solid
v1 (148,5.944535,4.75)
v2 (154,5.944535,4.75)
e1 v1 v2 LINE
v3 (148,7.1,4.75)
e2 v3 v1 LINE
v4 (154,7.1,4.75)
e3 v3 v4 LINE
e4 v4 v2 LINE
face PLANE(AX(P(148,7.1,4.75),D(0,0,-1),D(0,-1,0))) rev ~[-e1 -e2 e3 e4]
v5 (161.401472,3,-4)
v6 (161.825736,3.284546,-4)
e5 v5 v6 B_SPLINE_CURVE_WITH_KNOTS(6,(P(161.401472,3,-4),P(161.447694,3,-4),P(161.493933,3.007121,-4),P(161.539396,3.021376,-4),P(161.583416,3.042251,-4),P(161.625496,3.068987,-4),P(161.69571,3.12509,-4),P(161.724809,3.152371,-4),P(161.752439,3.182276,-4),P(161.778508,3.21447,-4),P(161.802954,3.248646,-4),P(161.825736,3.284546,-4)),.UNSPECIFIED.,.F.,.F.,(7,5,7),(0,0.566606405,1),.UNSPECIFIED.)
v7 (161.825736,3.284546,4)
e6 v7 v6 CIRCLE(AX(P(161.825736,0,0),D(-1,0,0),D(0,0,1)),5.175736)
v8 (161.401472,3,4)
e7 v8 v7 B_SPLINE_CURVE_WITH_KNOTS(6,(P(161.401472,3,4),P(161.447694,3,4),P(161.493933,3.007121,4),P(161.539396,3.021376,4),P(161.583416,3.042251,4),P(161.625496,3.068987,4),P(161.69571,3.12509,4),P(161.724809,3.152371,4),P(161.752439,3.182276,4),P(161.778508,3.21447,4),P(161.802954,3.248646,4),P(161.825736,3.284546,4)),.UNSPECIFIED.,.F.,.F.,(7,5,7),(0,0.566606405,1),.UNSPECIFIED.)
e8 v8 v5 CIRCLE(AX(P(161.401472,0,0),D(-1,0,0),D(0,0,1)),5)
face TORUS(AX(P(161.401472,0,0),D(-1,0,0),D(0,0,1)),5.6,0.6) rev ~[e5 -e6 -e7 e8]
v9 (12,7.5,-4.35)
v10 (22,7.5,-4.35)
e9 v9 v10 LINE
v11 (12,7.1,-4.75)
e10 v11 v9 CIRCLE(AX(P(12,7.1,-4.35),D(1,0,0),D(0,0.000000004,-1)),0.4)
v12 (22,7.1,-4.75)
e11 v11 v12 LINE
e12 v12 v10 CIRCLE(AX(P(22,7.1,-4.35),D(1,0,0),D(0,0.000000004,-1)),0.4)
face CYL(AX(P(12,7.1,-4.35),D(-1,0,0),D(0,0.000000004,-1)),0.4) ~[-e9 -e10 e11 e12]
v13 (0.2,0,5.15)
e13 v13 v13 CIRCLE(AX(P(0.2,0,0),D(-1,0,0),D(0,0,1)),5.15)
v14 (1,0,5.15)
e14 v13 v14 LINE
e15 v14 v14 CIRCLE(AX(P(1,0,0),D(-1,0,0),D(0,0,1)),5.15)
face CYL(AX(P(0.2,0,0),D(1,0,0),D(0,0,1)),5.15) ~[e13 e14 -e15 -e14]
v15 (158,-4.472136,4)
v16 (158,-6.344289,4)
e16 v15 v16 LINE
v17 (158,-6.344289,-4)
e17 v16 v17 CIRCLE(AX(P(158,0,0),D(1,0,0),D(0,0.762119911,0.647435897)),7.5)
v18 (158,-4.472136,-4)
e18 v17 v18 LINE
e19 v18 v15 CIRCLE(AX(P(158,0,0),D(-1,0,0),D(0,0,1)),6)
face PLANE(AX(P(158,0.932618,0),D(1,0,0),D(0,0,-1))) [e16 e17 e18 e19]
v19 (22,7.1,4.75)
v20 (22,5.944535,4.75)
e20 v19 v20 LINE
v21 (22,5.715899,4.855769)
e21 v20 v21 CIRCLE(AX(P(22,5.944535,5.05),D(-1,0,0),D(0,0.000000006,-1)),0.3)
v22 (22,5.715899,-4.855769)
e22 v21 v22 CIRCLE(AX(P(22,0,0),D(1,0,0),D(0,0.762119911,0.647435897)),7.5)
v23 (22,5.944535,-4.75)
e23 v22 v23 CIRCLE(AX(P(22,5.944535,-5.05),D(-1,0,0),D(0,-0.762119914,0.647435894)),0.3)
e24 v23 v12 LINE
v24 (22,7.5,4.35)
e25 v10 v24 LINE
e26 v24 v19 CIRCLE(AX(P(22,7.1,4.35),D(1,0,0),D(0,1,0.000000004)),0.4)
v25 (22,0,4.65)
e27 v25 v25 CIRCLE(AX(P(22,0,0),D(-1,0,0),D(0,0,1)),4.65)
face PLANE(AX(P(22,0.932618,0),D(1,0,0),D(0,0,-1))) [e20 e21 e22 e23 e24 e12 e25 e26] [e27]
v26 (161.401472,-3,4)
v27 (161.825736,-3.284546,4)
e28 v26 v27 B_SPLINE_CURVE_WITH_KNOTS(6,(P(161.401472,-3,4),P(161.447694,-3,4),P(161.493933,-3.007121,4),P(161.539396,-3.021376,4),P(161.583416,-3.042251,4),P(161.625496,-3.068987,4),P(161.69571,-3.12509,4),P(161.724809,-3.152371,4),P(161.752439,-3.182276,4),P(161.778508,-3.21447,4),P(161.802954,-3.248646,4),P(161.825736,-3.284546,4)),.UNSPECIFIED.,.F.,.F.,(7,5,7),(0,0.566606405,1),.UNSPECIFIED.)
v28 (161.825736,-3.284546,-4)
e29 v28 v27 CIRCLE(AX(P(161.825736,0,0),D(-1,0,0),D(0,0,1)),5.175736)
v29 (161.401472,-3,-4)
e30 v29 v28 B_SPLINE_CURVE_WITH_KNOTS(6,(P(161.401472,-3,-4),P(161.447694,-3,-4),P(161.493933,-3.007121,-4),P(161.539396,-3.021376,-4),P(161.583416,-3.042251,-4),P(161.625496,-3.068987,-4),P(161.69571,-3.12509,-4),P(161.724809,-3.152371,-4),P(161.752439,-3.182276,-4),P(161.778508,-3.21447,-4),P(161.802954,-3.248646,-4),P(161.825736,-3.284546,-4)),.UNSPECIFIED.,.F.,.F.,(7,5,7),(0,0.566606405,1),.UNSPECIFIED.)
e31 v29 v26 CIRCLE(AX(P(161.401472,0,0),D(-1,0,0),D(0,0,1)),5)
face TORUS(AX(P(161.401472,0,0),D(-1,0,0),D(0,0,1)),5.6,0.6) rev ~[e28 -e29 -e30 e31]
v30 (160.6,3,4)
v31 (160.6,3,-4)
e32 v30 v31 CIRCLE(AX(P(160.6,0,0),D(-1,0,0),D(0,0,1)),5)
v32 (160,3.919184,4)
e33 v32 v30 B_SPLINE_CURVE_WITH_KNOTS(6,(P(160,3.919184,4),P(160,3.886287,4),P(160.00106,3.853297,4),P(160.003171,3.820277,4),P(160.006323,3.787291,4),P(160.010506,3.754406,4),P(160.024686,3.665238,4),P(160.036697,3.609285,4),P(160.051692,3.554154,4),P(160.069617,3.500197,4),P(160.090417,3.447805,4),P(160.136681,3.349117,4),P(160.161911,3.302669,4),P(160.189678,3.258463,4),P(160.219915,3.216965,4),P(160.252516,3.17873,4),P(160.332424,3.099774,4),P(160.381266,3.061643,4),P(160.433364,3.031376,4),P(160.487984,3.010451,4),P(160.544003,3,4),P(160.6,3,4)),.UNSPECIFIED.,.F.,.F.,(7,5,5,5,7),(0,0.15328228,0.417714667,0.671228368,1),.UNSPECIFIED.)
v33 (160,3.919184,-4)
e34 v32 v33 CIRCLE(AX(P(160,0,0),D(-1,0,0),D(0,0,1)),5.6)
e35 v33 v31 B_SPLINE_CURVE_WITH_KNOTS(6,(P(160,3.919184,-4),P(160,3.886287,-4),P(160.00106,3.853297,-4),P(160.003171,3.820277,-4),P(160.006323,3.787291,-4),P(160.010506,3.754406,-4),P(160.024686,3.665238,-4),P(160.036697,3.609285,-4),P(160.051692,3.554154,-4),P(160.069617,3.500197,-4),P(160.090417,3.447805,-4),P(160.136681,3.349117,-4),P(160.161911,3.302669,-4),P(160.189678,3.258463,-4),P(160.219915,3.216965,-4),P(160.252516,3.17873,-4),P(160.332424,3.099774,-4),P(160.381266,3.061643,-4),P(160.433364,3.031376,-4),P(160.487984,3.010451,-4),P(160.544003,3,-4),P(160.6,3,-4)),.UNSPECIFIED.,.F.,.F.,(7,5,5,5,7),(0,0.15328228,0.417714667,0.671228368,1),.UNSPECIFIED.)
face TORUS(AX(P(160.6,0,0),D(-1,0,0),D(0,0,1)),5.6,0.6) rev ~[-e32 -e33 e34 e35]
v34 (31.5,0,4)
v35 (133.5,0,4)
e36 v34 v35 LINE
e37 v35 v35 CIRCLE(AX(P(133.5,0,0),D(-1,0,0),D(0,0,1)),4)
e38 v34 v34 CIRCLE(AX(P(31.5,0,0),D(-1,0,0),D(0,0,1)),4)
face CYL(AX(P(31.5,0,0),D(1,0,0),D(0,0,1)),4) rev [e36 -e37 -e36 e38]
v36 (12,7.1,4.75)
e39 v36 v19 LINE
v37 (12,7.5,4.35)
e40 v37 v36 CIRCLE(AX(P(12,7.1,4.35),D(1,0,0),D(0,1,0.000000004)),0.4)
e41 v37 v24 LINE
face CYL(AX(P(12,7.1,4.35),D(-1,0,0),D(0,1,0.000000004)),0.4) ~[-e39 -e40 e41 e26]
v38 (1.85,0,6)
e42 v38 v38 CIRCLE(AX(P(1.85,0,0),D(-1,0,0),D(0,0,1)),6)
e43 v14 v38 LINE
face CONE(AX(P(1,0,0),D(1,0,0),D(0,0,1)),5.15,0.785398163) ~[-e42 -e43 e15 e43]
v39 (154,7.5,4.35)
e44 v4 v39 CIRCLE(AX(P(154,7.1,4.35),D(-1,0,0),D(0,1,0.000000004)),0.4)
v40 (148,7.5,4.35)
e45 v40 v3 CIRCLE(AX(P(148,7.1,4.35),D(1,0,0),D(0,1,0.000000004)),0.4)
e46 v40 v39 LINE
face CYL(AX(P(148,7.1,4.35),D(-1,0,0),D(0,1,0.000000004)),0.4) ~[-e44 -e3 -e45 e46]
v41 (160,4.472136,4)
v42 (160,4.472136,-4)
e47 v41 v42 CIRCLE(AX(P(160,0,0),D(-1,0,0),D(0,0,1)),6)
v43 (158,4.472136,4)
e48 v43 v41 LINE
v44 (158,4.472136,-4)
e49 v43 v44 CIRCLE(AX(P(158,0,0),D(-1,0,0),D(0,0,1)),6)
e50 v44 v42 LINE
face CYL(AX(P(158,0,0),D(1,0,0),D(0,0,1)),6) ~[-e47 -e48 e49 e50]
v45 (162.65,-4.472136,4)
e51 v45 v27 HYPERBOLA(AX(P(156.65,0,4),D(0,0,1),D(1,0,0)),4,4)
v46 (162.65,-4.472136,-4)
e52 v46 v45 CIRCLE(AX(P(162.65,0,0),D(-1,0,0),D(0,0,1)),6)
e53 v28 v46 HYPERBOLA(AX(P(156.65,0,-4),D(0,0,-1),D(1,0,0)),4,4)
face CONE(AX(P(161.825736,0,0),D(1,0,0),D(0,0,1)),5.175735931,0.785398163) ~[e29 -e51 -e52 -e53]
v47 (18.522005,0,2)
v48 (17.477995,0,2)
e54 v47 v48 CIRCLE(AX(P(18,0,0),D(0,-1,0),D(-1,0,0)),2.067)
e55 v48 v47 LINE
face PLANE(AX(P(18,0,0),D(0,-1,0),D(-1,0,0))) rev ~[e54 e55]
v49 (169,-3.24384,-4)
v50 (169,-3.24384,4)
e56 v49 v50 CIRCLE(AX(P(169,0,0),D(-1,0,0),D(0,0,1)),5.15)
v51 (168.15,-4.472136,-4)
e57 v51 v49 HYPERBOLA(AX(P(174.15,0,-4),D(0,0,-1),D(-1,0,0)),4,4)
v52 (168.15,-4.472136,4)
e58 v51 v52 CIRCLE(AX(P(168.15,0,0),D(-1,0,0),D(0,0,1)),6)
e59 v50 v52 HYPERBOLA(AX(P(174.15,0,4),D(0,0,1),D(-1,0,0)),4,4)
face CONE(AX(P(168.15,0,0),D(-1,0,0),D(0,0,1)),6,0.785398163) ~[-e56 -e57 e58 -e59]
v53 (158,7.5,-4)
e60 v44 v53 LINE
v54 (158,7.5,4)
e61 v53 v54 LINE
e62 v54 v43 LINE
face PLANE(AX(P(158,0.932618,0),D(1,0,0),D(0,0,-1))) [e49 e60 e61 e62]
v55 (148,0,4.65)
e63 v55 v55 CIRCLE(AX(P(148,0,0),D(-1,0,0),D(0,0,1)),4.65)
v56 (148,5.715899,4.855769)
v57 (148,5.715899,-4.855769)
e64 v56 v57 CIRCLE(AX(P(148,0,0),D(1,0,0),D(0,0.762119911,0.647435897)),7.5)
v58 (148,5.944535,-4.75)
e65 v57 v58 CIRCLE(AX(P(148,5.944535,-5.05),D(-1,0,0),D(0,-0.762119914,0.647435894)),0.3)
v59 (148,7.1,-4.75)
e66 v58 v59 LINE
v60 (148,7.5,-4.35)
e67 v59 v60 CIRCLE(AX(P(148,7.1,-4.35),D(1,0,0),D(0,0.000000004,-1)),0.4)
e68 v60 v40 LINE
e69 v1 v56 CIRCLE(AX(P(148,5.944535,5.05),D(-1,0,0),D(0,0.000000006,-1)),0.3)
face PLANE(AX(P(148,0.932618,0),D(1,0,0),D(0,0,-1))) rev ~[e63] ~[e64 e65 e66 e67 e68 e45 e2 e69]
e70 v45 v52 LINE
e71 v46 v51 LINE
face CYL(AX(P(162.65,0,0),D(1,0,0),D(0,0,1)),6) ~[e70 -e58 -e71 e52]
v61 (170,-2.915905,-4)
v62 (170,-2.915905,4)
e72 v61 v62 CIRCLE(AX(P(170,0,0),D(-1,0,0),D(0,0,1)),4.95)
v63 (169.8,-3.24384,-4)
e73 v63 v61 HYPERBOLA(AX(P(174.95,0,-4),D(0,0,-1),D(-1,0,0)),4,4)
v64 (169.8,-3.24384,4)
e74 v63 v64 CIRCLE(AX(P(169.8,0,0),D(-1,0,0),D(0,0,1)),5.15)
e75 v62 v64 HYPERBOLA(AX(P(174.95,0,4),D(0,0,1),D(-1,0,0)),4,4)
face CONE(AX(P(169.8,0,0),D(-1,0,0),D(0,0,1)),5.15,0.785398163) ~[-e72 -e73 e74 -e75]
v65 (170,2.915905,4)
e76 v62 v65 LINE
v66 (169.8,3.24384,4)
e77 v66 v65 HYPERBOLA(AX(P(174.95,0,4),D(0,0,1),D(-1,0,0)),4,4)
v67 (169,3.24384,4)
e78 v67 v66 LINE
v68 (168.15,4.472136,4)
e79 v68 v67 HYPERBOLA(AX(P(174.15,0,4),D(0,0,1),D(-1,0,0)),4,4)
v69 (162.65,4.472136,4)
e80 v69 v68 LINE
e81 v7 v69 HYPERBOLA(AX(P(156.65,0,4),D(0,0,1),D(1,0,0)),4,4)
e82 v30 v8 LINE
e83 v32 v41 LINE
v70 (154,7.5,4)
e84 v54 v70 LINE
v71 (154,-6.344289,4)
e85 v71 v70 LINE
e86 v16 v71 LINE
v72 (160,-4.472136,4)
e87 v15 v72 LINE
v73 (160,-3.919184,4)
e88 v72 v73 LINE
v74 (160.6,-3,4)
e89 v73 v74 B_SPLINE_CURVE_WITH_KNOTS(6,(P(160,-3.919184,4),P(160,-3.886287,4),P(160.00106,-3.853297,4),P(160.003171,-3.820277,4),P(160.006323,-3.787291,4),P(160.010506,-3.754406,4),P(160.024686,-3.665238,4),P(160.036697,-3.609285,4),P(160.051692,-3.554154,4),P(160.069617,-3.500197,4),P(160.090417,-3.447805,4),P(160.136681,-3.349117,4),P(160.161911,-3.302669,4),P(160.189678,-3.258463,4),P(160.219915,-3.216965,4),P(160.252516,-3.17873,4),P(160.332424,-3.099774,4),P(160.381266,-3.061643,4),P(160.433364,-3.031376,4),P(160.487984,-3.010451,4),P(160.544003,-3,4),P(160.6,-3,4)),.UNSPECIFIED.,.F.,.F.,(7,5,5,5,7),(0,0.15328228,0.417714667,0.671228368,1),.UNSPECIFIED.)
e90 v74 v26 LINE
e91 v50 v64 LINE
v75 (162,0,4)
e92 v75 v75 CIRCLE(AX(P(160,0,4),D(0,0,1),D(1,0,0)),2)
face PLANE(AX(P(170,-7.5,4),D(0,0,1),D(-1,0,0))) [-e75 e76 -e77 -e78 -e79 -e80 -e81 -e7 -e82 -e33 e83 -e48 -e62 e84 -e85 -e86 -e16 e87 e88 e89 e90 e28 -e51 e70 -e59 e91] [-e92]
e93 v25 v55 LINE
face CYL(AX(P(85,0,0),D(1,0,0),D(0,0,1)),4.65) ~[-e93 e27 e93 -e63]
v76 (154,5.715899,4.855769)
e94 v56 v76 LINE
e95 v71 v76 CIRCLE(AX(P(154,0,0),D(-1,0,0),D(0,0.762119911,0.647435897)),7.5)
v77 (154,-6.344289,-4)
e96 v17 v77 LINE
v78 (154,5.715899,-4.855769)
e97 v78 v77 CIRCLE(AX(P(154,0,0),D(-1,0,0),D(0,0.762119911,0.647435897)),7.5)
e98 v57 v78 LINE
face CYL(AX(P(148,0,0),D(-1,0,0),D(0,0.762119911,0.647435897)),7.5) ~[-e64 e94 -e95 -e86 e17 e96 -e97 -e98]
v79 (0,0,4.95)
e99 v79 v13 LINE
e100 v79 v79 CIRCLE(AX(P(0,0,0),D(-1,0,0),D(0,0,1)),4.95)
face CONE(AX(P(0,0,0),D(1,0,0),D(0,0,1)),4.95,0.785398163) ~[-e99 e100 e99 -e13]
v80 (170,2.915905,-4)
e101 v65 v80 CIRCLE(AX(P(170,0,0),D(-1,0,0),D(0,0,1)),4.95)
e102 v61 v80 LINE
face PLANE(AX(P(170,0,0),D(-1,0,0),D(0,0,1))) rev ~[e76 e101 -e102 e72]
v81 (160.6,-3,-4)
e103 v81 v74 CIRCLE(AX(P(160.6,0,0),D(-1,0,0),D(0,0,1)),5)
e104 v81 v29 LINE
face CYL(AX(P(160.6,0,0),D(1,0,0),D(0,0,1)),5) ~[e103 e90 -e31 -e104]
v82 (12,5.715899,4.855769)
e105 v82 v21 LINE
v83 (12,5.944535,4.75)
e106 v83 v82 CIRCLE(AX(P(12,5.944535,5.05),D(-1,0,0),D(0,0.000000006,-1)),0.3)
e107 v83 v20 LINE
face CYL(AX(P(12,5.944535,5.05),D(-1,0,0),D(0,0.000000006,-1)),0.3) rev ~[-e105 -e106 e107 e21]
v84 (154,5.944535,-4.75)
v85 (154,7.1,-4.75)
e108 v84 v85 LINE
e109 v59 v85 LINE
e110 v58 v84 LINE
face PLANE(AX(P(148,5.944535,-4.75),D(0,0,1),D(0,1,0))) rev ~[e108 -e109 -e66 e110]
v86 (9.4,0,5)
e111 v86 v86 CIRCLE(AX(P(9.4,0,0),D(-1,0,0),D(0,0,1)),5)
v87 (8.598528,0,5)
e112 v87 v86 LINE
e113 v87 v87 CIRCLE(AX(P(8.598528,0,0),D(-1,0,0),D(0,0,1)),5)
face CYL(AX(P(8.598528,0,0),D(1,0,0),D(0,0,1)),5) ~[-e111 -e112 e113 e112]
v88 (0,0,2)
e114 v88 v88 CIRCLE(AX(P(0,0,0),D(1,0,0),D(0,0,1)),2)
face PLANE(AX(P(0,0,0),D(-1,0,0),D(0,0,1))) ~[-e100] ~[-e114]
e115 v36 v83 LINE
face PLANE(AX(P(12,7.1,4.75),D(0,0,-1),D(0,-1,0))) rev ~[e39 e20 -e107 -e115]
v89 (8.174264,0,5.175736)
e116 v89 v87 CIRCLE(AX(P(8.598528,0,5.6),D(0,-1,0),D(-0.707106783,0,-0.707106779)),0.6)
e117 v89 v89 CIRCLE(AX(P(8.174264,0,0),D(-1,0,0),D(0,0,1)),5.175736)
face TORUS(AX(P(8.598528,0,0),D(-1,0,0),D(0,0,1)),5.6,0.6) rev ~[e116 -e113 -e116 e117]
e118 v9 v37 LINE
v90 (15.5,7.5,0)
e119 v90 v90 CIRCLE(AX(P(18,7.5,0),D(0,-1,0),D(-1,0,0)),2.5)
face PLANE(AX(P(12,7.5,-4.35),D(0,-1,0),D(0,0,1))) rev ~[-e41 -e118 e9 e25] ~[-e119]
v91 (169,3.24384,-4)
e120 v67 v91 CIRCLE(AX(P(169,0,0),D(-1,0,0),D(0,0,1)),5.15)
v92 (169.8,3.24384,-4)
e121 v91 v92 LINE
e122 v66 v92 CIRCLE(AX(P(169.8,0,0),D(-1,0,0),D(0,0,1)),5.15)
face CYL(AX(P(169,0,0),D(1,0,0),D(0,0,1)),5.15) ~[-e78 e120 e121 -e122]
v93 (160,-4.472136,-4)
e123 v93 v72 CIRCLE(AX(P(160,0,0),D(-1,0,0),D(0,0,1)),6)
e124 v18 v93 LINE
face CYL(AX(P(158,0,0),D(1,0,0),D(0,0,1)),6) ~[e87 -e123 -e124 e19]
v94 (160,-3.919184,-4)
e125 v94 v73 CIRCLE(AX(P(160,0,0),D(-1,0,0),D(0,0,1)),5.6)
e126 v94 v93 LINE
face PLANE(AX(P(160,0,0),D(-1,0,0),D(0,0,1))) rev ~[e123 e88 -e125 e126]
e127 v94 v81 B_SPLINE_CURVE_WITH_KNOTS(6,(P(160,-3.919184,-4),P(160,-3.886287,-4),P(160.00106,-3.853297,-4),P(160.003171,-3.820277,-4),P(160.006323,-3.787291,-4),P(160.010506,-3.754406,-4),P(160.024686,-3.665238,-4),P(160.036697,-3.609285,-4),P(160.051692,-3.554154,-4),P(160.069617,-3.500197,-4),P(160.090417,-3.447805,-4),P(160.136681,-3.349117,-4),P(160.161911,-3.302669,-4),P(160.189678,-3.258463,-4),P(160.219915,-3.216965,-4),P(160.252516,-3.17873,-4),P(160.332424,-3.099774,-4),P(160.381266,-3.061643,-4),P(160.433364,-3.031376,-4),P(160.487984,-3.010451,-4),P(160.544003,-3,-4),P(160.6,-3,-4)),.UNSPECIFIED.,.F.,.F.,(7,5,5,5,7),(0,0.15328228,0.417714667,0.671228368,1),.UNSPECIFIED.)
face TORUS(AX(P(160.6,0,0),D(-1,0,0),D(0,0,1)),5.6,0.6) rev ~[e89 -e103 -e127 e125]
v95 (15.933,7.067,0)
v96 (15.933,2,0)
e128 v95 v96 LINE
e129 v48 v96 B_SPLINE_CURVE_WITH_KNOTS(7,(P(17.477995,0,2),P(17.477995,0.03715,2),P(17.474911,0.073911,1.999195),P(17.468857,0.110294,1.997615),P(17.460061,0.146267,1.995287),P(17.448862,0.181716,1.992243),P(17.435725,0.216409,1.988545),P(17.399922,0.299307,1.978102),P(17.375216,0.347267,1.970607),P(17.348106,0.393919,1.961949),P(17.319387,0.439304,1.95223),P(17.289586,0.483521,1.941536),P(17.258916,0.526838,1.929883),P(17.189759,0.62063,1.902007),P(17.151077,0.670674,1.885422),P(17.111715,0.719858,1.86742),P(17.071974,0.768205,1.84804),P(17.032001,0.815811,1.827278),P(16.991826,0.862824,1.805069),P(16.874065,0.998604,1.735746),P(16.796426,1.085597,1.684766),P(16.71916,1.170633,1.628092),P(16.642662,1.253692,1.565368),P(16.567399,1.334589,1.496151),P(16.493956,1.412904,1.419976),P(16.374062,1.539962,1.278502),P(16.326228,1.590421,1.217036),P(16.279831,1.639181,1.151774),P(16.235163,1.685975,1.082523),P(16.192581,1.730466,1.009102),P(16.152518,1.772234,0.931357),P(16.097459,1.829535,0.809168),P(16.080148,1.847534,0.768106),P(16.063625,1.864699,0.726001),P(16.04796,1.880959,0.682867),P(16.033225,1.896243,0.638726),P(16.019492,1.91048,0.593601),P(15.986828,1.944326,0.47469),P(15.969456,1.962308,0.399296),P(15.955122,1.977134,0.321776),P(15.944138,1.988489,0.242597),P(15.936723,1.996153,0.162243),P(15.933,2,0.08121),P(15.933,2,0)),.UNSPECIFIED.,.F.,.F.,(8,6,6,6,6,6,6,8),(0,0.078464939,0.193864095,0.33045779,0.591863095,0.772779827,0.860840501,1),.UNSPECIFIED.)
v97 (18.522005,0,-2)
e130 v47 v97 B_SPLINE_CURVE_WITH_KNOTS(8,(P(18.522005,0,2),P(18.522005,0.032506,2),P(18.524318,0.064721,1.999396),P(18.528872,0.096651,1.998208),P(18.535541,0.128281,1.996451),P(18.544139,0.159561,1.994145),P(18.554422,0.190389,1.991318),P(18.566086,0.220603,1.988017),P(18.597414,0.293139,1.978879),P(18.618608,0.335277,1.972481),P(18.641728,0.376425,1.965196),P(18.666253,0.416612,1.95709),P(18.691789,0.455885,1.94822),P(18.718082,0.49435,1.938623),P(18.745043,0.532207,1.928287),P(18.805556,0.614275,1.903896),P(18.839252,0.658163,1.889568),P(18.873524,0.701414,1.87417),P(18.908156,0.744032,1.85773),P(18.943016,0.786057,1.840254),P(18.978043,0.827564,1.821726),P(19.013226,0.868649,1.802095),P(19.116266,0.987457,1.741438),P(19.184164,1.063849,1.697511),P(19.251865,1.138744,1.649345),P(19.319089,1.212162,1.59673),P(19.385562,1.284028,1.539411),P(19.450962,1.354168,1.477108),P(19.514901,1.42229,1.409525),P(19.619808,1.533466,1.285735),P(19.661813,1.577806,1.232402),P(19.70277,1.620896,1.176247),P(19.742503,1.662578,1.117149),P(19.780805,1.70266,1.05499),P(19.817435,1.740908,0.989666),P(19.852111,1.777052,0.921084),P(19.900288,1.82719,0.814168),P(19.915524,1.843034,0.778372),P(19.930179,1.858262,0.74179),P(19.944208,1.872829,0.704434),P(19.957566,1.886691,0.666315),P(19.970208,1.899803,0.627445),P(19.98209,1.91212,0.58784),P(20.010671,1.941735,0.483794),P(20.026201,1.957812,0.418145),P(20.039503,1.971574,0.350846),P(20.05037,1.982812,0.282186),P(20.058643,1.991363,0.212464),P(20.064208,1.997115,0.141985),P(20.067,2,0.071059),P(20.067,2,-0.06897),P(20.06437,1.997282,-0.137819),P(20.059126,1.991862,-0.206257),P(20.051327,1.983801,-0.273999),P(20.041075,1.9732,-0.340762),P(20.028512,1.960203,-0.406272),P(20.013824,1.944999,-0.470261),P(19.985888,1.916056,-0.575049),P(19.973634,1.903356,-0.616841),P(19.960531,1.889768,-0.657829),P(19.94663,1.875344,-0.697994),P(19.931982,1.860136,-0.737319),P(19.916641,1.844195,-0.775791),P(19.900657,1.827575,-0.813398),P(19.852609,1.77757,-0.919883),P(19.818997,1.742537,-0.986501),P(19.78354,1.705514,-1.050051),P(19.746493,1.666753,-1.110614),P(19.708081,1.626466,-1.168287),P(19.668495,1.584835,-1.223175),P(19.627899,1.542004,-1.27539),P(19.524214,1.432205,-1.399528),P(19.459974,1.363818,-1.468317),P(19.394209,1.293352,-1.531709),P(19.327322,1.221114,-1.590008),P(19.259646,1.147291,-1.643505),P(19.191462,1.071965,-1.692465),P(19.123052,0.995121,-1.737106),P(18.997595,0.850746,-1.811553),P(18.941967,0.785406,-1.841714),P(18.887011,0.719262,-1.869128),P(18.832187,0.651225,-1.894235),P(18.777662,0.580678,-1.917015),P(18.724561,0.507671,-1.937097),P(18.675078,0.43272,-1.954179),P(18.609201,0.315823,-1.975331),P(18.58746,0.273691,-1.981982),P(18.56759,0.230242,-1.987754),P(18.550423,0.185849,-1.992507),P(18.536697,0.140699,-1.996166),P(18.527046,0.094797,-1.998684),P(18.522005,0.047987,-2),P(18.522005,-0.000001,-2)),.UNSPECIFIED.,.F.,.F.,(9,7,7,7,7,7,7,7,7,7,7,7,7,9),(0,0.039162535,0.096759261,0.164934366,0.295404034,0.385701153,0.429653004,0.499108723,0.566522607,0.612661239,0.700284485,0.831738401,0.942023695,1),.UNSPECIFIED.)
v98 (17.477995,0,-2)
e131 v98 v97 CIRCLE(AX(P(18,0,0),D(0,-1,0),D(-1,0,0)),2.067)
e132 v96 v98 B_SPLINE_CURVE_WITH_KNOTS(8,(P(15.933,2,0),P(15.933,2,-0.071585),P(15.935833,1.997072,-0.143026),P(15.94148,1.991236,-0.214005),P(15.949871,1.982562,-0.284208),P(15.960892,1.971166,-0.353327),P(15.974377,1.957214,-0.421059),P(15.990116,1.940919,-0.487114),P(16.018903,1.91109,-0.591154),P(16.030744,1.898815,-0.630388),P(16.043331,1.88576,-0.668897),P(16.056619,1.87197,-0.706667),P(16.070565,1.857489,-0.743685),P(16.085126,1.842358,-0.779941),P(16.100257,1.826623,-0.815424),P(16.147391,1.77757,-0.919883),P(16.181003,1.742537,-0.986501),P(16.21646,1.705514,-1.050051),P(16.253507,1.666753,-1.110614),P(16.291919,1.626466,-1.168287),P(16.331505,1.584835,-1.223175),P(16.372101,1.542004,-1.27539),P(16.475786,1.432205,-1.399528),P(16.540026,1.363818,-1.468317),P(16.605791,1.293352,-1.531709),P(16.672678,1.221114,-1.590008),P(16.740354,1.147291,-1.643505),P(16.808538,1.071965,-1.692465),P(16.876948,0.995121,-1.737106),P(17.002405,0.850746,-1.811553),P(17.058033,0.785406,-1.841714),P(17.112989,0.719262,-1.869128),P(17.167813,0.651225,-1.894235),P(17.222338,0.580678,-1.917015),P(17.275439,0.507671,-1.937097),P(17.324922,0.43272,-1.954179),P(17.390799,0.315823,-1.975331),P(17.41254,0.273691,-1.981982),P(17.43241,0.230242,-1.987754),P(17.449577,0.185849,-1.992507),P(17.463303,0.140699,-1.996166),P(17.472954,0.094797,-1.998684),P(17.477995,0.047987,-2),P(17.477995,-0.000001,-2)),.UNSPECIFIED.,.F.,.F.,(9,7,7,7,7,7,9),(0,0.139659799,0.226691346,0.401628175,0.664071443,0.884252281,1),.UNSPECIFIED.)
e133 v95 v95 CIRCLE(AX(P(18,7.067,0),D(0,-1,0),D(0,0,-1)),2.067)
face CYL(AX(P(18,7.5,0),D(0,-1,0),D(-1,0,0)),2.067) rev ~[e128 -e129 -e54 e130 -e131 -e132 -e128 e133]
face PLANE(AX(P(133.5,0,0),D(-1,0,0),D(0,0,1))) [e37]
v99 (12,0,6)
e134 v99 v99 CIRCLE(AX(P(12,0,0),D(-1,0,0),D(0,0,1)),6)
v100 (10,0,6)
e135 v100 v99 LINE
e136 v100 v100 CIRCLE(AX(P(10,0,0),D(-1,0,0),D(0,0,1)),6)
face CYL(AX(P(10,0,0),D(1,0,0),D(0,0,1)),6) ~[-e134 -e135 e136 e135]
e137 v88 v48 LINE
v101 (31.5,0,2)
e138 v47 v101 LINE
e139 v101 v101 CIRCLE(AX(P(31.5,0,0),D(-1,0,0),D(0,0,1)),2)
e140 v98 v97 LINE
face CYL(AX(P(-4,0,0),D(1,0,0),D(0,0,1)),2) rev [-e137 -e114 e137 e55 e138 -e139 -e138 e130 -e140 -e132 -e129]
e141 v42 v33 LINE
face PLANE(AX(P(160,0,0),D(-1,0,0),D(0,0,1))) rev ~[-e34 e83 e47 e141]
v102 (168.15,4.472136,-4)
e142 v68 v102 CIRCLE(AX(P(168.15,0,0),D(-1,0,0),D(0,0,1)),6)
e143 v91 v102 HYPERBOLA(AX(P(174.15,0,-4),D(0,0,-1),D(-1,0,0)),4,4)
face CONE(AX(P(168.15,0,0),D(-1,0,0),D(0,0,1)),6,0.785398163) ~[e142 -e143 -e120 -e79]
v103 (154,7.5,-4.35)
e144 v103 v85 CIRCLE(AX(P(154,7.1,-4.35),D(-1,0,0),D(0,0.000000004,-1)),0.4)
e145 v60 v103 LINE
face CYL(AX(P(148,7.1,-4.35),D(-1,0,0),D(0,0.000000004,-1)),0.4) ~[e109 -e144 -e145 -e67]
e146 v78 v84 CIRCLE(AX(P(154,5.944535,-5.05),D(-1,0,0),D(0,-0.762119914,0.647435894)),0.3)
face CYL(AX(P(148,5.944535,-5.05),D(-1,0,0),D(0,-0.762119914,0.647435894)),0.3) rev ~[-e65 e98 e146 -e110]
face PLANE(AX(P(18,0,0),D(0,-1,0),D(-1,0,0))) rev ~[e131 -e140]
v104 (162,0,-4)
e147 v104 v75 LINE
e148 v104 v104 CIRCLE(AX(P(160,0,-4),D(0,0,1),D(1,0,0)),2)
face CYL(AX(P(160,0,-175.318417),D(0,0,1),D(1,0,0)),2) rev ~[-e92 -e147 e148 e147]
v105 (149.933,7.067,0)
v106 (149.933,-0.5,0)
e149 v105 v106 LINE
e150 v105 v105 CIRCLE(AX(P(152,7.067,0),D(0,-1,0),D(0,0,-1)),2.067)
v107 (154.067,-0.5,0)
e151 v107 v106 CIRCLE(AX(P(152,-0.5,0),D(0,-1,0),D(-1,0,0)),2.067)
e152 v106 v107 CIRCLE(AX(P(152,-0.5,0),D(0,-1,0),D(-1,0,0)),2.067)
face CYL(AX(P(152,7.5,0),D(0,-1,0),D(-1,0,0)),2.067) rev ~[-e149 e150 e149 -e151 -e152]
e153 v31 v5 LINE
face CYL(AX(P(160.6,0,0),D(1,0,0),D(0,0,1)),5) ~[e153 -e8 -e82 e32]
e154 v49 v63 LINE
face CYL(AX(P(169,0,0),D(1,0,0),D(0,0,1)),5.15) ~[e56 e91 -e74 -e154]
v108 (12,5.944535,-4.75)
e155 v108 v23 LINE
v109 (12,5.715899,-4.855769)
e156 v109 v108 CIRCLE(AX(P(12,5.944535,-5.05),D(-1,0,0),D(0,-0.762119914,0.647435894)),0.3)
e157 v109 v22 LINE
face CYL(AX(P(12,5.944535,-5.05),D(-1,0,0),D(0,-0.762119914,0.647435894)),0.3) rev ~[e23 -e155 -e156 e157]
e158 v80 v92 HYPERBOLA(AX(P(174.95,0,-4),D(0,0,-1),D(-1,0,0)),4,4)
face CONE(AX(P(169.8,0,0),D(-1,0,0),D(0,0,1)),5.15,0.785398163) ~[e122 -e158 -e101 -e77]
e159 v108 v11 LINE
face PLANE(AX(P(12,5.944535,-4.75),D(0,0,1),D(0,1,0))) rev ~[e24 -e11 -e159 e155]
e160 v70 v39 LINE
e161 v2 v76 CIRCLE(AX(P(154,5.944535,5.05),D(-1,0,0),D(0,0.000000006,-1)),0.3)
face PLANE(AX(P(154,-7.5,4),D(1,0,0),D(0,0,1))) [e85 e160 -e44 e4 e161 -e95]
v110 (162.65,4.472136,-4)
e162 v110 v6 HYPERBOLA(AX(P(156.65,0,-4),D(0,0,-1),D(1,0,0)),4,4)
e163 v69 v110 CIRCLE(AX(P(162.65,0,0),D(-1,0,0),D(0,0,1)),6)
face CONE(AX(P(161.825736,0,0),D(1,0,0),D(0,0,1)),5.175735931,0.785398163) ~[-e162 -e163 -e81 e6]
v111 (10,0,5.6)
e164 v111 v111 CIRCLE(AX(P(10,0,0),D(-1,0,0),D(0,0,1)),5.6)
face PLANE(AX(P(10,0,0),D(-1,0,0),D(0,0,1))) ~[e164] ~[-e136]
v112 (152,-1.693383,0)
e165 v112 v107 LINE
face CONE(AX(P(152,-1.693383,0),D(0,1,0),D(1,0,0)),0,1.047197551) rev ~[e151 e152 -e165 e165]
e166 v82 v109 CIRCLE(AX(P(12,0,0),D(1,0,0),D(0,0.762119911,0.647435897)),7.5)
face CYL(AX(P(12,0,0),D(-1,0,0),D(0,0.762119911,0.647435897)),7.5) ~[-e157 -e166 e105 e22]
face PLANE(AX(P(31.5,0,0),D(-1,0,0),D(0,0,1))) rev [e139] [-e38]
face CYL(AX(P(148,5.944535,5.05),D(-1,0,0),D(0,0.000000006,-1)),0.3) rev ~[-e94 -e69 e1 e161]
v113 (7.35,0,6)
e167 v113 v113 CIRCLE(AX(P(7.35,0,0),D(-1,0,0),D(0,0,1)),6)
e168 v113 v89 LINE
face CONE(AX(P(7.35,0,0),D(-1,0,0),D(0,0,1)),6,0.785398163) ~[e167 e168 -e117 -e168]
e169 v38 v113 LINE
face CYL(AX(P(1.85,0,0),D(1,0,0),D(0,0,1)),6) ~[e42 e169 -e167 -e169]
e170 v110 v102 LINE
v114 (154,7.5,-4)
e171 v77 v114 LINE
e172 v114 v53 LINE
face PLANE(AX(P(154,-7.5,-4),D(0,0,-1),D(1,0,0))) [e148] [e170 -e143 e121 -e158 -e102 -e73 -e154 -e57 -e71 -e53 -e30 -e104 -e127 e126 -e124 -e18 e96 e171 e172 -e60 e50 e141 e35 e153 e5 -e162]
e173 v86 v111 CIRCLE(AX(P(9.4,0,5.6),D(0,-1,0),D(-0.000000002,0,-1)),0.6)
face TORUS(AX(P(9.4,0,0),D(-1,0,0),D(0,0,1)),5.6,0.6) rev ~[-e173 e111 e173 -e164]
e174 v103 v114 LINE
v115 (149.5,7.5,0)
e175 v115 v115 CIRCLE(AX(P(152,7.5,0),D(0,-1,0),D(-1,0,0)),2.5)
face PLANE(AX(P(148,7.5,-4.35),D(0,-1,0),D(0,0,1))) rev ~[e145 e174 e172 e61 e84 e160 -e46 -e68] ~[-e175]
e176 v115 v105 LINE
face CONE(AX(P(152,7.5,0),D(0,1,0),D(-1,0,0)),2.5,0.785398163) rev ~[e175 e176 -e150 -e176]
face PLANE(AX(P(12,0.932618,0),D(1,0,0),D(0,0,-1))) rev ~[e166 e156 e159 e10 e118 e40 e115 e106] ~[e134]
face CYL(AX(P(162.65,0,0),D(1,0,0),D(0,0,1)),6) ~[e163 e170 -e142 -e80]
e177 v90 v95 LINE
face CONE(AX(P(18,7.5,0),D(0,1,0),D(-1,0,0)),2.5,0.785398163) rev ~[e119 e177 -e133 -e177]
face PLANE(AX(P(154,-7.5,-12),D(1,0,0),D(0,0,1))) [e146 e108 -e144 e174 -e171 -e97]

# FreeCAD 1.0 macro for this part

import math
import FreeCAD as App
import Part
import Sketcher

V = App.Vector
Q = App.Units.Quantity

doc = App.newDocument("Part")
body = doc.addObject("PartDesign::Body", "Body")

# Sketch on XY plane
sketch1 = body.newObject("Sketcher::SketchObject", "Sketch")
sketch1.AttachmentSupport = (doc.getObject("XY_Plane"), [""])
sketch1.MapMode = "FlatFace"
sketch1.addGeometry(Part.LineSegment(V(0, 4.95, 0), V(0, 0, 0)), False)
sketch1.addGeometry(Part.LineSegment(V(0, 0, 0), V(12, 0, 0)), False)
sketch1.addGeometry(Part.LineSegment(V(12, 0, 0), V(12, 6, 0)), False)
sketch1.addGeometry(Part.LineSegment(V(12, 6, 0), V(10, 6, 0)), False)
sketch1.addGeometry(Part.LineSegment(V(10, 6, 0), V(10, 5.6, 0)), False)
sketch1.addGeometry(Part.ArcOfCircle(Part.Circle(V(9.4, 5.6, 0), V(0, 0, 1), 0.6), math.radians(-90), math.radians(0)), False)
sketch1.addGeometry(Part.LineSegment(V(9.4, 5, 0), V(8.6, 5, 0)), False)
sketch1.addGeometry(Part.ArcOfCircle(Part.Circle(V(8.6, 5.6, 0), V(0, 0, 1), 0.6), math.radians(-135), math.radians(-90)), False)
sketch1.addGeometry(Part.LineSegment(V(8.17, 5.18, 0), V(7.35, 6, 0)), False)
sketch1.addGeometry(Part.LineSegment(V(7.35, 6, 0), V(1.85, 6, 0)), False)
sketch1.addGeometry(Part.LineSegment(V(1.85, 6, 0), V(1, 5.15, 0)), False)
sketch1.addGeometry(Part.LineSegment(V(1, 5.15, 0), V(0.2, 5.15, 0)), False)
sketch1.addGeometry(Part.LineSegment(V(0.2, 5.15, 0), V(0, 4.95, 0)), False)
sketch1.addConstraint(Sketcher.Constraint("Coincident", 0, 2, 1, 1))
sketch1.addConstraint(Sketcher.Constraint("Coincident", 1, 2, 2, 1))
sketch1.addConstraint(Sketcher.Constraint("Coincident", 2, 2, 3, 1))
sketch1.addConstraint(Sketcher.Constraint("Coincident", 3, 2, 4, 1))
sketch1.addConstraint(Sketcher.Constraint("Tangent", 4, 2, 5, 2))
sketch1.addConstraint(Sketcher.Constraint("Tangent", 5, 1, 6, 1))
sketch1.addConstraint(Sketcher.Constraint("Tangent", 6, 2, 7, 2))
sketch1.addConstraint(Sketcher.Constraint("Tangent", 7, 1, 8, 1))
sketch1.addConstraint(Sketcher.Constraint("Coincident", 8, 2, 9, 1))
sketch1.addConstraint(Sketcher.Constraint("Coincident", 9, 2, 10, 1))
sketch1.addConstraint(Sketcher.Constraint("Coincident", 10, 2, 11, 1))
sketch1.addConstraint(Sketcher.Constraint("Coincident", 11, 2, 12, 1))
sketch1.addConstraint(Sketcher.Constraint("Coincident", 12, 2, 0, 1))
sketch1.addConstraint(Sketcher.Constraint("Vertical", 0))
sketch1.addConstraint(Sketcher.Constraint("Horizontal", 1))
sketch1.addConstraint(Sketcher.Constraint("Vertical", 2))
sketch1.addConstraint(Sketcher.Constraint("Horizontal", 3))
sketch1.addConstraint(Sketcher.Constraint("Vertical", 4))
sketch1.addConstraint(Sketcher.Constraint("Horizontal", 6))
sketch1.addConstraint(Sketcher.Constraint("Horizontal", 9))
sketch1.addConstraint(Sketcher.Constraint("Horizontal", 11))
sketch1.addConstraint(Sketcher.Constraint("Coincident", 0, 2, -1, 1))
sketch1.addConstraint(Sketcher.Constraint("Equal", 5, 7))
sketch1.addConstraint(Sketcher.Constraint("Perpendicular", 8, 10))
sketch1.addConstraint(Sketcher.Constraint("Parallel", 10, 12))
sketch1.addConstraint(Sketcher.Constraint("Horizontal", 3, 2, 8, 2))
sketch1.addConstraint(Sketcher.Constraint("Radius", 5, 0.6))
sketch1.addConstraint(Sketcher.Constraint("DistanceX", 1, 1, 1, 2, 12.0))
sketch1.addConstraint(Sketcher.Constraint("DistanceX", 3, 2, 3, 1, 2.0))
sketch1.addConstraint(Sketcher.Constraint("DistanceY", 2, 1, 2, 2, 6.0))
sketch1.addConstraint(Sketcher.Constraint("Angle", 8, Q("135 deg")))
sketch1.addConstraint(Sketcher.Constraint("DistanceX", 9, 2, 9, 1, 5.5))
sketch1.addConstraint(Sketcher.Constraint("DistanceX", 11, 2, 11, 1, 0.8))
sketch1.addConstraint(Sketcher.Constraint("DistanceY", 4, 2, 4, 1, 0.4))
sketch1.addConstraint(Sketcher.Constraint("DistanceX", -1, 1, 10, 2, 1.0))
sketch1.addConstraint(Sketcher.Constraint("DistanceY", 0, 2, 0, 1, 4.95))
revolution = body.newObject("PartDesign::Revolution", "Revolution")
revolution.Profile = sketch1
revolution.ReferenceAxis = (sketch1, ["H_Axis"])
revolution.Angle = 360

# Sketch on YZ plane
sketch2 = body.newObject("Sketcher::SketchObject", "Sketch001")
sketch2.AttachmentSupport = (doc.getObject("YZ_Plane"), [""])
sketch2.MapMode = "FlatFace"
sketch2.AttachmentOffset = App.Placement(V(0, 0, 12), App.Rotation())
sketch2.addGeometry(Part.LineSegment(V(5.94, -4.75, 0), V(7.1, -4.75, 0)), False)
sketch2.addGeometry(Part.ArcOfCircle(Part.Circle(V(7.1, -4.35, 0), V(0, 0, 1), 0.4), math.radians(-90), math.radians(0)), False)
sketch2.addGeometry(Part.LineSegment(V(7.5, -4.35, 0), V(7.5, 4.35, 0)), False)
sketch2.addGeometry(Part.ArcOfCircle(Part.Circle(V(7.1, 4.35, 0), V(0, 0, 1), 0.4), math.radians(0), math.radians(90)), False)
sketch2.addGeometry(Part.LineSegment(V(7.1, 4.75, 0), V(5.94, 4.75, 0)), False)
sketch2.addGeometry(Part.ArcOfCircle(Part.Circle(V(5.94, 5.05, 0), V(0, 0, 1), 0.3), math.radians(-140), math.radians(-90)), False)
sketch2.addGeometry(Part.ArcOfCircle(Part.Circle(V(0, 0, 0), V(0, 0, 1), 7.5), math.radians(40), math.radians(320)), False)
sketch2.addGeometry(Part.ArcOfCircle(Part.Circle(V(5.94, -5.05, 0), V(0, 0, 1), 0.3), math.radians(90), math.radians(140)), False)
sketch2.addConstraint(Sketcher.Constraint("Tangent", 0, 2, 1, 1))
sketch2.addConstraint(Sketcher.Constraint("Tangent", 1, 2, 2, 1))
sketch2.addConstraint(Sketcher.Constraint("Tangent", 2, 2, 3, 1))
sketch2.addConstraint(Sketcher.Constraint("Tangent", 3, 2, 4, 1))
sketch2.addConstraint(Sketcher.Constraint("Tangent", 4, 2, 5, 2))
sketch2.addConstraint(Sketcher.Constraint("Tangent", 5, 1, 6, 1))
sketch2.addConstraint(Sketcher.Constraint("Tangent", 6, 2, 7, 2))
sketch2.addConstraint(Sketcher.Constraint("Tangent", 7, 1, 0, 1))
sketch2.addConstraint(Sketcher.Constraint("Horizontal", 0))
sketch2.addConstraint(Sketcher.Constraint("Vertical", 2))
sketch2.addConstraint(Sketcher.Constraint("Horizontal", 4))
sketch2.addConstraint(Sketcher.Constraint("Coincident", 6, 3, -1, 1))
sketch2.addConstraint(Sketcher.Constraint("Equal", 1, 3))
sketch2.addConstraint(Sketcher.Constraint("Equal", 5, 7))
sketch2.addConstraint(Sketcher.Constraint("Vertical", 5, 3, 7, 3))
sketch2.addConstraint(Sketcher.Constraint("Radius", 1, 0.4))
sketch2.addConstraint(Sketcher.Constraint("Radius", 5, 0.3))
sketch2.addConstraint(Sketcher.Constraint("Radius", 6, 7.5))
sketch2.addConstraint(Sketcher.Constraint("DistanceY", 2, 1, 2, 2, 8.7))
sketch2.addConstraint(Sketcher.Constraint("DistanceX", -1, 1, 1, 3, 7.1))
pad1 = body.newObject("PartDesign::Pad", "Pad")
pad1.Profile = sketch2
pad1.Length = 10

# Sketch on XY plane
sketch3 = body.newObject("Sketcher::SketchObject", "Sketch002")
sketch3.AttachmentSupport = (doc.getObject("XY_Plane"), [""])
sketch3.MapMode = "FlatFace"
sketch3.addGeometry(Part.LineSegment(V(22, 4.7, 0), V(22, 0, 0)), False)
sketch3.addGeometry(Part.LineSegment(V(22, 0, 0), V(148, 0, 0)), False)
sketch3.addGeometry(Part.LineSegment(V(148, 0, 0), V(148, 4.7, 0)), False)
sketch3.addGeometry(Part.LineSegment(V(148, 4.7, 0), V(22, 4.7, 0)), False)
sketch3.addConstraint(Sketcher.Constraint("Coincident", 0, 2, 1, 1))
sketch3.addConstraint(Sketcher.Constraint("Coincident", 1, 2, 2, 1))
sketch3.addConstraint(Sketcher.Constraint("Coincident", 2, 2, 3, 1))
sketch3.addConstraint(Sketcher.Constraint("Coincident", 3, 2, 0, 1))
sketch3.addConstraint(Sketcher.Constraint("Vertical", 0))
sketch3.addConstraint(Sketcher.Constraint("Horizontal", 1))
sketch3.addConstraint(Sketcher.Constraint("Vertical", 2))
sketch3.addConstraint(Sketcher.Constraint("Horizontal", 3))
sketch3.addConstraint(Sketcher.Constraint("PointOnObject", 0, 2, -1))
sketch3.addConstraint(Sketcher.Constraint("DistanceX", 1, 1, 1, 2, 126.0))
sketch3.addConstraint(Sketcher.Constraint("DistanceX", -1, 1, 0, 2, 22.0))
sketch3.addConstraint(Sketcher.Constraint("DistanceY", 0, 2, 0, 1, 4.65))
revolution2 = body.newObject("PartDesign::Revolution", "Revolution001")
revolution2.Profile = sketch3
revolution2.ReferenceAxis = (sketch3, ["H_Axis"])
revolution2.Angle = 360

# Sketch on YZ plane
sketch4 = body.newObject("Sketcher::SketchObject", "Sketch003")
sketch4.AttachmentSupport = (doc.getObject("YZ_Plane"), [""])
sketch4.MapMode = "FlatFace"
sketch4.AttachmentOffset = App.Placement(V(0, 0, 148), App.Rotation())
sketch4.addGeometry(Part.LineSegment(V(5.94, -4.75, 0), V(7.1, -4.75, 0)), False)
sketch4.addGeometry(Part.ArcOfCircle(Part.Circle(V(7.1, -4.35, 0), V(0, 0, 1), 0.4), math.radians(-90), math.radians(0)), False)
sketch4.addGeometry(Part.LineSegment(V(7.5, -4.35, 0), V(7.5, 4.35, 0)), False)
sketch4.addGeometry(Part.ArcOfCircle(Part.Circle(V(7.1, 4.35, 0), V(0, 0, 1), 0.4), math.radians(0), math.radians(90)), False)
sketch4.addGeometry(Part.LineSegment(V(7.1, 4.75, 0), V(5.94, 4.75, 0)), False)
sketch4.addGeometry(Part.ArcOfCircle(Part.Circle(V(5.94, 5.05, 0), V(0, 0, 1), 0.3), math.radians(-140), math.radians(-90)), False)
sketch4.addGeometry(Part.ArcOfCircle(Part.Circle(V(0, 0, 0), V(0, 0, 1), 7.5), math.radians(40), math.radians(320)), False)
sketch4.addGeometry(Part.ArcOfCircle(Part.Circle(V(5.94, -5.05, 0), V(0, 0, 1), 0.3), math.radians(90), math.radians(140)), False)
sketch4.addConstraint(Sketcher.Constraint("Tangent", 0, 2, 1, 1))
sketch4.addConstraint(Sketcher.Constraint("Tangent", 1, 2, 2, 1))
sketch4.addConstraint(Sketcher.Constraint("Tangent", 2, 2, 3, 1))
sketch4.addConstraint(Sketcher.Constraint("Tangent", 3, 2, 4, 1))
sketch4.addConstraint(Sketcher.Constraint("Tangent", 4, 2, 5, 2))
sketch4.addConstraint(Sketcher.Constraint("Tangent", 5, 1, 6, 1))
sketch4.addConstraint(Sketcher.Constraint("Tangent", 6, 2, 7, 2))
sketch4.addConstraint(Sketcher.Constraint("Tangent", 7, 1, 0, 1))
sketch4.addConstraint(Sketcher.Constraint("Horizontal", 0))
sketch4.addConstraint(Sketcher.Constraint("Vertical", 2))
sketch4.addConstraint(Sketcher.Constraint("Horizontal", 4))
sketch4.addConstraint(Sketcher.Constraint("Coincident", 6, 3, -1, 1))
sketch4.addConstraint(Sketcher.Constraint("Equal", 1, 3))
sketch4.addConstraint(Sketcher.Constraint("Equal", 5, 7))
sketch4.addConstraint(Sketcher.Constraint("Vertical", 5, 3, 7, 3))
sketch4.addConstraint(Sketcher.Constraint("Radius", 1, 0.4))
sketch4.addConstraint(Sketcher.Constraint("Radius", 5, 0.3))
sketch4.addConstraint(Sketcher.Constraint("Radius", 6, 7.5))
sketch4.addConstraint(Sketcher.Constraint("DistanceY", 2, 1, 2, 2, 8.7))
sketch4.addConstraint(Sketcher.Constraint("DistanceX", -1, 1, 1, 3, 7.1))
pad2 = body.newObject("PartDesign::Pad", "Pad001")
pad2.Profile = sketch4
pad2.Length = 10

# Sketch on XY plane
sketch5 = body.newObject("Sketcher::SketchObject", "Sketch004")
sketch5.AttachmentSupport = (doc.getObject("XY_Plane"), [""])
sketch5.MapMode = "FlatFace"
sketch5.addGeometry(Part.LineSegment(V(158, 6, 0), V(158, 0, 0)), False)
sketch5.addGeometry(Part.LineSegment(V(158, 0, 0), V(170, 0, 0)), False)
sketch5.addGeometry(Part.LineSegment(V(170, 0, 0), V(170, 4.95, 0)), False)
sketch5.addGeometry(Part.LineSegment(V(170, 4.95, 0), V(169.8, 5.15, 0)), False)
sketch5.addGeometry(Part.LineSegment(V(169.8, 5.15, 0), V(169, 5.15, 0)), False)
sketch5.addGeometry(Part.LineSegment(V(169, 5.15, 0), V(168.15, 6, 0)), False)
sketch5.addGeometry(Part.LineSegment(V(168.15, 6, 0), V(162.65, 6, 0)), False)
sketch5.addGeometry(Part.LineSegment(V(162.65, 6, 0), V(161.83, 5.18, 0)), False)
sketch5.addGeometry(Part.ArcOfCircle(Part.Circle(V(161.4, 5.6, 0), V(0, 0, 1), 0.6), math.radians(-90), math.radians(-45)), False)
sketch5.addGeometry(Part.LineSegment(V(161.4, 5, 0), V(160.6, 5, 0)), False)
sketch5.addGeometry(Part.ArcOfCircle(Part.Circle(V(160.6, 5.6, 0), V(0, 0, 1), 0.6), math.radians(180), math.radians(270)), False)
sketch5.addGeometry(Part.LineSegment(V(160, 5.6, 0), V(160, 6, 0)), False)
sketch5.addGeometry(Part.LineSegment(V(160, 6, 0), V(158, 6, 0)), False)
sketch5.addConstraint(Sketcher.Constraint("Coincident", 0, 2, 1, 1))
sketch5.addConstraint(Sketcher.Constraint("Coincident", 1, 2, 2, 1))
sketch5.addConstraint(Sketcher.Constraint("Coincident", 2, 2, 3, 1))
sketch5.addConstraint(Sketcher.Constraint("Coincident", 3, 2, 4, 1))
sketch5.addConstraint(Sketcher.Constraint("Coincident", 4, 2, 5, 1))
sketch5.addConstraint(Sketcher.Constraint("Coincident", 5, 2, 6, 1))
sketch5.addConstraint(Sketcher.Constraint("Coincident", 6, 2, 7, 1))
sketch5.addConstraint(Sketcher.Constraint("Tangent", 7, 2, 8, 2))
sketch5.addConstraint(Sketcher.Constraint("Tangent", 8, 1, 9, 1))
sketch5.addConstraint(Sketcher.Constraint("Tangent", 9, 2, 10, 2))
sketch5.addConstraint(Sketcher.Constraint("Tangent", 10, 1, 11, 1))
sketch5.addConstraint(Sketcher.Constraint("Coincident", 11, 2, 12, 1))
sketch5.addConstraint(Sketcher.Constraint("Coincident", 12, 2, 0, 1))
sketch5.addConstraint(Sketcher.Constraint("Vertical", 0))
sketch5.addConstraint(Sketcher.Constraint("Horizontal", 1))
sketch5.addConstraint(Sketcher.Constraint("Vertical", 2))
sketch5.addConstraint(Sketcher.Constraint("Horizontal", 4))
sketch5.addConstraint(Sketcher.Constraint("Horizontal", 6))
sketch5.addConstraint(Sketcher.Constraint("Horizontal", 9))
sketch5.addConstraint(Sketcher.Constraint("Vertical", 11))
sketch5.addConstraint(Sketcher.Constraint("Horizontal", 12))
sketch5.addConstraint(Sketcher.Constraint("Equal", 8, 10))
sketch5.addConstraint(Sketcher.Constraint("PointOnObject", 0, 2, -1))
sketch5.addConstraint(Sketcher.Constraint("Parallel", 3, 5))
sketch5.addConstraint(Sketcher.Constraint("Perpendicular", 5, 7))
sketch5.addConstraint(Sketcher.Constraint("Horizontal", 6, 2, 11, 2))
sketch5.addConstraint(Sketcher.Constraint("Radius", 8, 0.6))
sketch5.addConstraint(Sketcher.Constraint("DistanceX", 1, 1, 1, 2, 12.0))
sketch5.addConstraint(Sketcher.Constraint("DistanceX", 12, 2, 12, 1, 2.0))
sketch5.addConstraint(Sketcher.Constraint("DistanceY", 0, 2, 0, 1, 6.0))
sketch5.addConstraint(Sketcher.Constraint("Angle", 3, Q("135 deg")))
sketch5.addConstraint(Sketcher.Constraint("DistanceX", 4, 2, 4, 1, 0.8))
sketch5.addConstraint(Sketcher.Constraint("DistanceX", 6, 2, 6, 1, 5.5))
sketch5.addConstraint(Sketcher.Constraint("DistanceY", 11, 1, 11, 2, 0.4))
sketch5.addConstraint(Sketcher.Constraint("DistanceX", -1, 1, 0, 2, 158.0))
sketch5.addConstraint(Sketcher.Constraint("DistanceX", -1, 1, 4, 2, 169.0))
sketch5.addConstraint(Sketcher.Constraint("DistanceY", 2, 1, 2, 2, 4.95))
revolution3 = body.newObject("PartDesign::Revolution", "Revolution002")
revolution3.Profile = sketch5
revolution3.ReferenceAxis = (sketch5, ["H_Axis"])
revolution3.Angle = 360

# Sketch on XZ plane
sketch6 = body.newObject("Sketcher::SketchObject", "Sketch005")
sketch6.AttachmentSupport = (doc.getObject("XZ_Plane"), [""])
sketch6.MapMode = "FlatFace"
sketch6.addGeometry(Part.LineSegment(V(154, -12, 0), V(154, -4, 0)), False)
sketch6.addGeometry(Part.LineSegment(V(154, -4, 0), V(170, -4, 0)), False)
sketch6.addGeometry(Part.LineSegment(V(170, -4, 0), V(170, 4, 0)), False)
sketch6.addGeometry(Part.LineSegment(V(170, 4, 0), V(154, 4, 0)), False)
sketch6.addGeometry(Part.LineSegment(V(154, 4, 0), V(154, 12, 0)), False)
sketch6.addGeometry(Part.LineSegment(V(154, 12, 0), V(178, 12, 0)), False)
sketch6.addGeometry(Part.LineSegment(V(178, 12, 0), V(178, -12, 0)), False)
sketch6.addGeometry(Part.LineSegment(V(178, -12, 0), V(154, -12, 0)), False)
sketch6.addConstraint(Sketcher.Constraint("Coincident", 0, 2, 1, 1))
sketch6.addConstraint(Sketcher.Constraint("Coincident", 1, 2, 2, 1))
sketch6.addConstraint(Sketcher.Constraint("Coincident", 2, 2, 3, 1))
sketch6.addConstraint(Sketcher.Constraint("Coincident", 3, 2, 4, 1))
sketch6.addConstraint(Sketcher.Constraint("Coincident", 4, 2, 5, 1))
sketch6.addConstraint(Sketcher.Constraint("Coincident", 5, 2, 6, 1))
sketch6.addConstraint(Sketcher.Constraint("Coincident", 6, 2, 7, 1))
sketch6.addConstraint(Sketcher.Constraint("Coincident", 7, 2, 0, 1))
sketch6.addConstraint(Sketcher.Constraint("Vertical", 0))
sketch6.addConstraint(Sketcher.Constraint("Horizontal", 1))
sketch6.addConstraint(Sketcher.Constraint("Vertical", 2))
sketch6.addConstraint(Sketcher.Constraint("Horizontal", 3))
sketch6.addConstraint(Sketcher.Constraint("Vertical", 4))
sketch6.addConstraint(Sketcher.Constraint("Horizontal", 5))
sketch6.addConstraint(Sketcher.Constraint("Vertical", 6))
sketch6.addConstraint(Sketcher.Constraint("Horizontal", 7))
sketch6.addConstraint(Sketcher.Constraint("Symmetric", 0, 2, 3, 2, -1))
sketch6.addConstraint(Sketcher.Constraint("Equal", 0, 2))
sketch6.addConstraint(Sketcher.Constraint("Equal", 2, 4))
sketch6.addConstraint(Sketcher.Constraint("Equal", 7, 6))
sketch6.addConstraint(Sketcher.Constraint("DistanceX", 1, 1, 1, 2, 16.0))
sketch6.addConstraint(Sketcher.Constraint("DistanceX", 5, 1, 5, 2, 24.0))
sketch6.addConstraint(Sketcher.Constraint("DistanceX", -1, 1, 0, 2, 154.0))
pocket1 = body.newObject("PartDesign::Pocket", "Pocket")
pocket1.Profile = sketch6
pocket1.Type = "ThroughAll"
pocket1.Midplane = True

# Sketch on XY plane
sketch7 = body.newObject("Sketcher::SketchObject", "Sketch006")
sketch7.AttachmentSupport = (doc.getObject("XY_Plane"), [""])
sketch7.MapMode = "FlatFace"
sketch7.AttachmentOffset = App.Placement(V(0, 0, -4), App.Rotation())
sketch7.addGeometry(Part.Circle(V(160, 0, 0), V(0, 0, 1), 2), False)
sketch7.addConstraint(Sketcher.Constraint("PointOnObject", 0, 3, -1))
sketch7.addConstraint(Sketcher.Constraint("Diameter", 0, 4.0))
sketch7.addConstraint(Sketcher.Constraint("DistanceX", -1, 1, 0, 3, 160.0))
doc.recompute()
hole = body.newObject("PartDesign::Hole", "Hole")
hole.Profile = sketch7
hole.ThreadType = "None"
hole.Diameter = 4
hole.DepthType = "ThroughAll"
hole.Reversed = True

# Sketch on XZ plane
sketch8 = body.newObject("Sketcher::SketchObject", "Sketch007")
sketch8.AttachmentSupport = (doc.getObject("XZ_Plane"), [""])
sketch8.MapMode = "FlatFace"
sketch8.AttachmentOffset = App.Placement(V(0, 0, -7.5), App.Rotation())
sketch8.addGeometry(Part.Circle(V(18, 0, 0), V(0, 0, 1), 2.1), False)
sketch8.addConstraint(Sketcher.Constraint("PointOnObject", 0, 3, -1))
sketch8.addConstraint(Sketcher.Constraint("Diameter", 0, 4.134))
sketch8.addConstraint(Sketcher.Constraint("DistanceX", -1, 1, 0, 3, 18.0))
doc.recompute()
hole2 = body.newObject("PartDesign::Hole", "Hole001")
hole2.Profile = sketch8
hole2.ThreadType = "None"
hole2.Diameter = 4.134
hole2.DepthType = "Dimension"
hole2.Depth = 7.5
hole2.DrillPoint = "Flat"
hole2.HoleCutType = "Countersink"
hole2.HoleCutDiameter = 5
hole2.HoleCutCountersinkAngle = 90
hole2.Reversed = True

# Sketch on XZ plane
sketch9 = body.newObject("Sketcher::SketchObject", "Sketch008")
sketch9.AttachmentSupport = (doc.getObject("XZ_Plane"), [""])
sketch9.MapMode = "FlatFace"
sketch9.AttachmentOffset = App.Placement(V(0, 0, -7.5), App.Rotation())
sketch9.addGeometry(Part.Circle(V(152, 0, 0), V(0, 0, 1), 2.1), False)
sketch9.addConstraint(Sketcher.Constraint("PointOnObject", 0, 3, -1))
sketch9.addConstraint(Sketcher.Constraint("Diameter", 0, 4.134))
sketch9.addConstraint(Sketcher.Constraint("DistanceX", -1, 1, 0, 3, 152.0))
doc.recompute()
hole3 = body.newObject("PartDesign::Hole", "Hole002")
hole3.Profile = sketch9
hole3.ThreadType = "None"
hole3.Diameter = 4.134
hole3.DepthType = "Dimension"
hole3.Depth = 8
hole3.DrillPoint = "Angled"
hole3.DrillPointAngle = 120
hole3.HoleCutType = "Countersink"
hole3.HoleCutDiameter = 5
hole3.HoleCutCountersinkAngle = 90
hole3.Reversed = True

# Sketch on XY plane
sketch10 = body.newObject("Sketcher::SketchObject", "Sketch009")
sketch10.AttachmentSupport = (doc.getObject("XY_Plane"), [""])
sketch10.MapMode = "FlatFace"
sketch10.addGeometry(Part.LineSegment(V(-4, 2, 0), V(-4, 0, 0)), False)
sketch10.addGeometry(Part.LineSegment(V(-4, 0, 0), V(133.5, 0, 0)), False)
sketch10.addGeometry(Part.LineSegment(V(133.5, 0, 0), V(133.5, 4, 0)), False)
sketch10.addGeometry(Part.LineSegment(V(133.5, 4, 0), V(31.5, 4, 0)), False)
sketch10.addGeometry(Part.LineSegment(V(31.5, 4, 0), V(31.5, 2, 0)), False)
sketch10.addGeometry(Part.LineSegment(V(31.5, 2, 0), V(-4, 2, 0)), False)
sketch10.addConstraint(Sketcher.Constraint("Coincident", 0, 2, 1, 1))
sketch10.addConstraint(Sketcher.Constraint("Coincident", 1, 2, 2, 1))
sketch10.addConstraint(Sketcher.Constraint("Coincident", 2, 2, 3, 1))
sketch10.addConstraint(Sketcher.Constraint("Coincident", 3, 2, 4, 1))
sketch10.addConstraint(Sketcher.Constraint("Coincident", 4, 2, 5, 1))
sketch10.addConstraint(Sketcher.Constraint("Coincident", 5, 2, 0, 1))
sketch10.addConstraint(Sketcher.Constraint("Vertical", 0))
sketch10.addConstraint(Sketcher.Constraint("Horizontal", 1))
sketch10.addConstraint(Sketcher.Constraint("Vertical", 2))
sketch10.addConstraint(Sketcher.Constraint("Horizontal", 3))
sketch10.addConstraint(Sketcher.Constraint("Vertical", 4))
sketch10.addConstraint(Sketcher.Constraint("Horizontal", 5))
sketch10.addConstraint(Sketcher.Constraint("PointOnObject", 0, 2, -1))
sketch10.addConstraint(Sketcher.Constraint("Equal", 0, 4))
sketch10.addConstraint(Sketcher.Constraint("DistanceX", 3, 2, 3, 1, 102.0))
sketch10.addConstraint(Sketcher.Constraint("DistanceY", 0, 2, 0, 1, 2.0))
sketch10.addConstraint(Sketcher.Constraint("DistanceX", 1, 1, 1, 2, 137.5))
sketch10.addConstraint(Sketcher.Constraint("DistanceX", 0, 2, -1, 1, 4.0))
groove = body.newObject("PartDesign::Groove", "Groove")
groove.Profile = sketch10
groove.ReferenceAxis = (sketch10, ["H_Axis"])
groove.Angle = 360

doc.recompute()
